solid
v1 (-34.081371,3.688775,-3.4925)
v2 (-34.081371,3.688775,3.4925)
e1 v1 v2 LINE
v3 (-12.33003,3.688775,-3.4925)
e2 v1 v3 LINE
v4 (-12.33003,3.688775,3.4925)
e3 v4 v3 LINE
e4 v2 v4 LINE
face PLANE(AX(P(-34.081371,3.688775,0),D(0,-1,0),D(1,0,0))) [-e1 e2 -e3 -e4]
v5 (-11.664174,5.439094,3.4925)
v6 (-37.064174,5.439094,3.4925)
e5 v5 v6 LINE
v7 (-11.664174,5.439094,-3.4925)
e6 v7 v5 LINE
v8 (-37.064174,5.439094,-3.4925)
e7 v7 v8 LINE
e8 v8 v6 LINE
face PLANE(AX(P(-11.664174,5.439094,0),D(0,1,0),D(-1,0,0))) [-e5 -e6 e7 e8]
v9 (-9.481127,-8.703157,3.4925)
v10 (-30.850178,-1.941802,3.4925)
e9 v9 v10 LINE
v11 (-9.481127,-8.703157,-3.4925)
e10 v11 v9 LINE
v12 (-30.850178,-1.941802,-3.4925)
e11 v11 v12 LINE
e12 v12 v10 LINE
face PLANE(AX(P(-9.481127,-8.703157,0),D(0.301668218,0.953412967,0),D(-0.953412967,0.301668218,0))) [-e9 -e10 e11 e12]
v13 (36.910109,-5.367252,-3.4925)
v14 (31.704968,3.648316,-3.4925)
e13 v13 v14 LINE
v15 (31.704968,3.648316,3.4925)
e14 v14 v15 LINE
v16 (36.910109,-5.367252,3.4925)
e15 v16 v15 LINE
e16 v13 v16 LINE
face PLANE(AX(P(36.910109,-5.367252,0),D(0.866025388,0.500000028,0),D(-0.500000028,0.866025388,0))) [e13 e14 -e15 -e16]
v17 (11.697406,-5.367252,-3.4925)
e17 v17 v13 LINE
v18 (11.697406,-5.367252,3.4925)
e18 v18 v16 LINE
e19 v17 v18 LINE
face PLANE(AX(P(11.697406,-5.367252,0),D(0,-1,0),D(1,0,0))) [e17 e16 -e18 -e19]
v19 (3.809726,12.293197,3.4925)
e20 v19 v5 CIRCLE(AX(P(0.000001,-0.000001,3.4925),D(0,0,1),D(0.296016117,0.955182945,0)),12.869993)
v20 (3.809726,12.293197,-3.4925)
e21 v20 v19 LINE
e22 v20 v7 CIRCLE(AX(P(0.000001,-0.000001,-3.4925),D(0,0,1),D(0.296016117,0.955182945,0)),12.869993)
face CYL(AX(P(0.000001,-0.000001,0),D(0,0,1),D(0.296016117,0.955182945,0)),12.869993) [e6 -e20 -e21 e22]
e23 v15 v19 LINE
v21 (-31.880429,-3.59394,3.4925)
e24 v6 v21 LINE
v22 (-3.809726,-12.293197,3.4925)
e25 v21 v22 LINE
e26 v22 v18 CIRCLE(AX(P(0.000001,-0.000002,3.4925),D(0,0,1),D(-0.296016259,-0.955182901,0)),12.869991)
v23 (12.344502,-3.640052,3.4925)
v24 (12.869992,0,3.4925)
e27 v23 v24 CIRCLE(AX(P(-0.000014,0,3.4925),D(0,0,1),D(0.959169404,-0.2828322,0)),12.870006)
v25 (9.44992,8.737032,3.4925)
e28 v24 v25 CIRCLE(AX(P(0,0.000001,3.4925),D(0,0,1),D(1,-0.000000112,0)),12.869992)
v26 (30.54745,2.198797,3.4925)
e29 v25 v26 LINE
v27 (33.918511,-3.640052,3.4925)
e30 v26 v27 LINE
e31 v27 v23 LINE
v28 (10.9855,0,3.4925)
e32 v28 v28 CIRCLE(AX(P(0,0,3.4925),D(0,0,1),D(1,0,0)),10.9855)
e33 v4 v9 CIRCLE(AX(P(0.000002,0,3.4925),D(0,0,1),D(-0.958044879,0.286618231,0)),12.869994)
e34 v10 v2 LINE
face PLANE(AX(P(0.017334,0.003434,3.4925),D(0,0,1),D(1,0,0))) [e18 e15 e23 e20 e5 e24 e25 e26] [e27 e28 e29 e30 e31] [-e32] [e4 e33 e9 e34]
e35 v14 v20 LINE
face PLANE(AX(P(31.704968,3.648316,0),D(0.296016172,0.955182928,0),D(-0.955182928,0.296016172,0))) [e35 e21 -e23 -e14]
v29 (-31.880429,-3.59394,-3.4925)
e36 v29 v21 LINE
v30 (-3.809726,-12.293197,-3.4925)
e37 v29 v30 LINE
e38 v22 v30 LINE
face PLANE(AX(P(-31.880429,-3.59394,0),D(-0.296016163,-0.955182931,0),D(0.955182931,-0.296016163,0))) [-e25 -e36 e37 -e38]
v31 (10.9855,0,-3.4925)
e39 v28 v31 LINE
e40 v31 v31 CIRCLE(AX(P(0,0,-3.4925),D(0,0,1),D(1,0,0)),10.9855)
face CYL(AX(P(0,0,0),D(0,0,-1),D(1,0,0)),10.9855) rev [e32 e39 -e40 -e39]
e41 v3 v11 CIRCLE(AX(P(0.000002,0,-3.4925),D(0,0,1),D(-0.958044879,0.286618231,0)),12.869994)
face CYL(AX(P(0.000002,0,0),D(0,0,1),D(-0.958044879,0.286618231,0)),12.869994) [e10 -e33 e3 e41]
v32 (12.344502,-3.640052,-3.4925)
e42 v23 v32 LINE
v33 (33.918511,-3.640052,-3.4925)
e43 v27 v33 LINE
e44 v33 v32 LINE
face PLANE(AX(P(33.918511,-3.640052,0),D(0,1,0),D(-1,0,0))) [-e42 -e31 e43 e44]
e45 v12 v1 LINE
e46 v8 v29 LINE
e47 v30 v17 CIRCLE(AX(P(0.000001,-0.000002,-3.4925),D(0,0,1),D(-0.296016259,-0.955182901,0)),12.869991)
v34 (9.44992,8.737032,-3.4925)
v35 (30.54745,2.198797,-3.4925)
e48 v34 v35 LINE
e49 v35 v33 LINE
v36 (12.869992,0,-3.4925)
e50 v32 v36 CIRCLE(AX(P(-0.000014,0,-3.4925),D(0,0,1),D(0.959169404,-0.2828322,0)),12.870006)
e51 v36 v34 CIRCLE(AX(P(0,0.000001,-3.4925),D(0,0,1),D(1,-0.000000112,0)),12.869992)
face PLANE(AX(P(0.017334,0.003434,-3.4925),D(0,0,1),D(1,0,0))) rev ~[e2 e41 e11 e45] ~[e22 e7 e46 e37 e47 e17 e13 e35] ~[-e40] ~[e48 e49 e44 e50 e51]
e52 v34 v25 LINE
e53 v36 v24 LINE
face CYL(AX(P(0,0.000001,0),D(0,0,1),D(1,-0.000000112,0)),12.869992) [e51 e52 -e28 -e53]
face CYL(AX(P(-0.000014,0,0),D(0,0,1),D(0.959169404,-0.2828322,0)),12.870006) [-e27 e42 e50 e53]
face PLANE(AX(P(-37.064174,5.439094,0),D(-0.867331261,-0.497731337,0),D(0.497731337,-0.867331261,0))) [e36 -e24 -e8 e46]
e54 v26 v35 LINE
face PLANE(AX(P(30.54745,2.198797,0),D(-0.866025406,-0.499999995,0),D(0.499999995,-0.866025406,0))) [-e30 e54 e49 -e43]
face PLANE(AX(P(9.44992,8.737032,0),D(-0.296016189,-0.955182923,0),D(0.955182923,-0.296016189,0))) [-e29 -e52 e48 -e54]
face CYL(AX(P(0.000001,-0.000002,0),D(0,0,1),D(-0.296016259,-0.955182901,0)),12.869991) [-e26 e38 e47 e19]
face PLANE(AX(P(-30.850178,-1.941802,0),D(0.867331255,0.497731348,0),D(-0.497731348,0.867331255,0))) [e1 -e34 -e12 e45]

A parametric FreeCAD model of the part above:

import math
import FreeCAD as App
import Part
import Sketcher

V = App.Vector
Q = App.Units.Quantity

doc = App.newDocument("Part")
params = doc.addObject("Spreadsheet::Sheet", "Params")
for row, (alias, value) in enumerate([
    ("sketch1_width", "1 in"),
    ("sketch1_diameter", "0.865 in"),
    ("pad1_length", "0.275 in"),
], start=1):
    params.set(f"A{row}", alias)
    params.set(f"B{row}", "=" + value)
    params.setAlias(f"B{row}", alias)

body = doc.addObject("PartDesign::Body", "Body")

# Sketch on XY plane
sketch1 = doc.addObject("Sketcher::SketchObject", "Sketch")
body.addObject(sketch1)
sketch1.AttachmentSupport = (doc.XY_Plane, [""])
sketch1.MapMode = "FlatFace"
sketch1.addGeometry(Part.ArcOfCircle(Part.Circle(V(0.000001, -0.000002, 0), V(0, 0, 1), 12.869991), math.radians(-107.218487), math.radians(-24.647603)), False)
sketch1.addGeometry(Part.LineSegment(V(11.697406, -5.367252, 0), V(36.910109, -5.367252, 0)), False)
sketch1.addGeometry(Part.LineSegment(V(36.910109, -5.367252, 0), V(31.704968, 3.648316, 0)), False)
sketch1.addGeometry(Part.LineSegment(V(31.704968, 3.648316, 0), V(3.809726, 12.293197, 0)), False)
sketch1.addGeometry(Part.ArcOfCircle(Part.Circle(V(0.000001, -0.000001, 0), V(0, 0, 1), 12.869993), math.radians(72.781522), math.radians(154.999996)), False)
sketch1.addGeometry(Part.LineSegment(V(-11.664174, 5.439094, 0), V(-37.064174, 5.439094, 0)), False)
sketch1.addGeometry(Part.LineSegment(V(-37.064174, 5.439094, 0), V(-31.880429, -3.59394, 0)), False)
sketch1.addGeometry(Part.LineSegment(V(-31.880429, -3.59394, 0), V(-3.809726, -12.293197, 0)), False)
sketch1.addGeometry(Part.ArcOfCircle(Part.Circle(V(-0.000014, 0, 0), V(0, 0, 1), 12.870006), math.radians(-16.429312), math.radians(0)), False)
sketch1.addGeometry(Part.ArcOfCircle(Part.Circle(V(0, 0.000001, 0), V(0, 0, 1), 12.869992), math.radians(-0.000006), math.radians(42.755279)), False)
sketch1.addGeometry(Part.LineSegment(V(9.44992, 8.737032, 0), V(30.54745, 2.198797, 0)), False)
sketch1.addGeometry(Part.LineSegment(V(30.54745, 2.198797, 0), V(33.918511, -3.640052, 0)), False)
sketch1.addGeometry(Part.LineSegment(V(33.918511, -3.640052, 0), V(12.344502, -3.640052, 0)), False)
sketch1.addGeometry(Part.ArcOfCircle(Part.Circle(V(0.000002, 0, 0), V(0, 0, 1), 12.869994), math.radians(163.344398), math.radians(222.550229)), False)
sketch1.addGeometry(Part.LineSegment(V(-9.481127, -8.703157, 0), V(-30.850178, -1.941802, 0)), False)
sketch1.addGeometry(Part.LineSegment(V(-30.850178, -1.941802, 0), V(-34.081371, 3.688775, 0)), False)
sketch1.addGeometry(Part.LineSegment(V(-34.081371, 3.688775, 0), V(-12.33003, 3.688775, 0)), False)
sketch1.addGeometry(Part.Circle(V(0, 0, 0), V(0, 0, 1), 10.9855), False)
sketch1.addConstraint(Sketcher.Constraint("Coincident", 0, 2, 1, 1))
sketch1.addConstraint(Sketcher.Constraint("Coincident", 1, 2, 2, 1))
sketch1.addConstraint(Sketcher.Constraint("Coincident", 2, 2, 3, 1))
sketch1.addConstraint(Sketcher.Constraint("Coincident", 3, 2, 4, 1))
sketch1.addConstraint(Sketcher.Constraint("Coincident", 4, 2, 5, 1))
sketch1.addConstraint(Sketcher.Constraint("Coincident", 5, 2, 6, 1))
sketch1.addConstraint(Sketcher.Constraint("Coincident", 6, 2, 7, 1))
sketch1.addConstraint(Sketcher.Constraint("Coincident", 7, 2, 0, 1))
sketch1.addConstraint(Sketcher.Constraint("Coincident", 8, 2, 9, 1))
sketch1.addConstraint(Sketcher.Constraint("Coincident", 9, 2, 10, 1))
sketch1.addConstraint(Sketcher.Constraint("Coincident", 10, 2, 11, 1))
sketch1.addConstraint(Sketcher.Constraint("Coincident", 11, 2, 12, 1))
sketch1.addConstraint(Sketcher.Constraint("Coincident", 12, 2, 8, 1))
sketch1.addConstraint(Sketcher.Constraint("Coincident", 13, 2, 14, 1))
sketch1.addConstraint(Sketcher.Constraint("Coincident", 14, 2, 15, 1))
sketch1.addConstraint(Sketcher.Constraint("Coincident", 15, 2, 16, 1))
sketch1.addConstraint(Sketcher.Constraint("Coincident", 16, 2, 13, 1))
sketch1.addConstraint(Sketcher.Constraint("Horizontal", 1))
sketch1.addConstraint(Sketcher.Constraint("Horizontal", 5))
sketch1.addConstraint(Sketcher.Constraint("Horizontal", 12))
sketch1.addConstraint(Sketcher.Constraint("Horizontal", 16))
sketch1.addConstraint(Sketcher.Constraint("Coincident", 0, 3, -1, 1))
sketch1.addConstraint(Sketcher.Constraint("Coincident", 4, 3, -1, 1))
sketch1.addConstraint(Sketcher.Constraint("Coincident", 9, 3, -1, 1))
sketch1.addConstraint(Sketcher.Constraint("Coincident", 13, 3, -1, 1))
sketch1.addConstraint(Sketcher.Constraint("Coincident", 17, 3, -1, 1))
sketch1.addConstraint(Sketcher.Constraint("PointOnObject", 8, 3, -1))
sketch1.addConstraint(Sketcher.Constraint("PointOnObject", 8, 2, -1))
sketch1.addConstraint(Sketcher.Constraint("DistanceX", 5, 2, 5, 1, Q("1 in")))
sketch1.addConstraint(Sketcher.Constraint("Diameter", 17, Q("0.865 in")))
sketch1.addConstraint(Sketcher.Constraint("Radius", 0, Q("12.869991 mm")))
sketch1.addConstraint(Sketcher.Constraint("Radius", 9, Q("12.869992 mm")))
sketch1.addConstraint(Sketcher.Constraint("DistanceY", 1, 2, 11, 2, Q("0.068 in")))
sketch1.addConstraint(Sketcher.Constraint("Radius", 4, Q("12.869993 mm")))
sketch1.addConstraint(Sketcher.Constraint("Radius", 8, Q("12.870006 mm")))
sketch1.addConstraint(Sketcher.Constraint("Radius", 13, Q("12.869994 mm")))
sketch1.addConstraint(Sketcher.Constraint("DistanceX", 12, 2, 12, 1, Q("21.574009 mm")))
sketch1.addConstraint(Sketcher.Constraint("DistanceX", 16, 1, 16, 2, Q("21.751341 mm")))
sketch1.addConstraint(Sketcher.Constraint("DistanceY", 0, 3, 3, 2, Q("12.293199 mm")))
sketch1.addConstraint(Sketcher.Constraint("DistanceX", 13, 3, 12, 2, Q("12.3445 mm")))
sketch1.addConstraint(Sketcher.Constraint("DistanceX", 13, 2, 7, 2, Q("5.671401 mm")))
sketch1.addConstraint(Sketcher.Constraint("Distance", 2, Q("10.410281 mm")))
sketch1.addConstraint(Sketcher.Constraint("Distance", 15, Q("6.491841 mm")))
sketch1.addConstraint(Sketcher.Constraint("DistanceX", 1, 1, 1, 2, Q("25.212703 mm")))
sketch1.addConstraint(Sketcher.Constraint("DistanceX", -1, 1, 2, 2, Q("31.704968 mm")))
sketch1.addConstraint(Sketcher.Constraint("DistanceX", 6, 2, -1, 1, Q("31.880429 mm")))
sketch1.addConstraint(Sketcher.Constraint("DistanceY", 6, 2, -1, 1, Q("3.59394 mm")))
sketch1.addConstraint(Sketcher.Constraint("DistanceX", -1, 1, 9, 2, Q("9.44992 mm")))
sketch1.addConstraint(Sketcher.Constraint("DistanceX", -1, 1, 10, 2, Q("30.54745 mm")))
sketch1.addConstraint(Sketcher.Constraint("DistanceX", 15, 2, -1, 1, Q("34.081371 mm")))
sketch1.addConstraint(Sketcher.Constraint("DistanceX", 4, 2, 8, 3, Q("11.66416 mm")))
sketch1.addConstraint(Sketcher.Constraint("DistanceY", 10, 2, 2, 2, Q("1.449519 mm")))
sketch1.addConstraint(Sketcher.Constraint("DistanceY", 7, 2, 13, 2, Q("3.59004 mm")))
sketch1.addConstraint(Sketcher.Constraint("DistanceX", 6, 2, 14, 2, Q("1.030251 mm")))
sketch1.setExpression("Constraints[28]", "Params.sketch1_width")
sketch1.setExpression("Constraints[29]", "Params.sketch1_diameter")
pad1 = doc.addObject("PartDesign::Pad", "Pad")
body.addObject(pad1)
pad1.Profile = sketch1
pad1.setExpression("Length", "Params.pad1_length")
pad1.Midplane = True

doc.recompute()
